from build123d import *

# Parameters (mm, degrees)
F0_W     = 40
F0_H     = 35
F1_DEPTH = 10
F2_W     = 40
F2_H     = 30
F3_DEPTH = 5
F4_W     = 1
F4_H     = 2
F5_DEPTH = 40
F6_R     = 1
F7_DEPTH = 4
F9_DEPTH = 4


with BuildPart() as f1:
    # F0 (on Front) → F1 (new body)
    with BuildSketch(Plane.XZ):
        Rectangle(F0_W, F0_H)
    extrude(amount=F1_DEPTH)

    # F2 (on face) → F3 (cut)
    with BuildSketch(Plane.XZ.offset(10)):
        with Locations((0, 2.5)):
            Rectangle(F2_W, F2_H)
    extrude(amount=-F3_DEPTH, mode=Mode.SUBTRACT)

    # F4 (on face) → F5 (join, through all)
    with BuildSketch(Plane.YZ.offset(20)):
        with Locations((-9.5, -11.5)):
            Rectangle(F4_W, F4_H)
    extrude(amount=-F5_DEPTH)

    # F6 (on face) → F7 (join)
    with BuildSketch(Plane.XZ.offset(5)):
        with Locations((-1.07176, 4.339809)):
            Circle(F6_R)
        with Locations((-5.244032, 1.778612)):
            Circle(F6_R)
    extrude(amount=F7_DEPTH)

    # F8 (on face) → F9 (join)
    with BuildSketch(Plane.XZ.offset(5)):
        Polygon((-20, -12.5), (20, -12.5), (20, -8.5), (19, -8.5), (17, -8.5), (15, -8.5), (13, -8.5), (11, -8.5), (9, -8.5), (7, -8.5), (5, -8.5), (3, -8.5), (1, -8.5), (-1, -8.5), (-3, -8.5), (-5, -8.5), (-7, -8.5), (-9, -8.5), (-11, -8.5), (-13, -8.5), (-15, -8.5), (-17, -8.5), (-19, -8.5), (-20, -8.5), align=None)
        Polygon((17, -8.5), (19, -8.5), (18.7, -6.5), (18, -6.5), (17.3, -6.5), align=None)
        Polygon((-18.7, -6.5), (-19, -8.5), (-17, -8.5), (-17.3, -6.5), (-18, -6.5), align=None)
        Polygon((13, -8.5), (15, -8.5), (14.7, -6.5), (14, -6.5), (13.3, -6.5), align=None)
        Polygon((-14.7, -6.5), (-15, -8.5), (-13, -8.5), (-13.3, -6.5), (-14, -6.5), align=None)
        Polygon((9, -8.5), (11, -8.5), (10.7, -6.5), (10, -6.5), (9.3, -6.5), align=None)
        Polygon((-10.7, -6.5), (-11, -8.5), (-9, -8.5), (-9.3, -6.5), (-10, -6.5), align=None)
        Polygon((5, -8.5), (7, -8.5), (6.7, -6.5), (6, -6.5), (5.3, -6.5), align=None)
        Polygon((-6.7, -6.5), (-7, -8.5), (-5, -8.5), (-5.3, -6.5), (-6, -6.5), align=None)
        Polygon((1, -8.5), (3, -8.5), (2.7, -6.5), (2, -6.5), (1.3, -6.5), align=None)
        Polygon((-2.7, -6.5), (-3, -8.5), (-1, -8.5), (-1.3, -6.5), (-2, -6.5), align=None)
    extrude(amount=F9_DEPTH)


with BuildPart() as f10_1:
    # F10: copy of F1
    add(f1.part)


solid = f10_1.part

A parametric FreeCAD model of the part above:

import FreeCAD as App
import Part
import Sketcher

doc = App.newDocument("Part")
params = doc.addObject("Spreadsheet::Sheet", "Params")
for row, (alias, value) in enumerate([
    ("sketch1_width", "40 mm"),
    ("sketch1_height", "35 mm"),
    ("pad1_length", "10 mm"),
    ("sketch2_width", "40 mm"),
    ("sketch2_height", "30 mm"),
    ("pocket1_length", "5 mm"),
    ("sketch3_width", "1 mm"),
    ("sketch3_height", "2 mm"),
    ("pad2_length", "40 mm"),
    ("sketch4_diameter", "2 mm"),
    ("pad3_length", "4 mm"),
    ("sketch5_width", "40 mm"),
    ("sketch5_width2", "1 mm"),
    ("sketch5_width3", "2 mm"),
    ("sketch5_height", "4 mm"),
    ("sketch5_width4", "1.4 mm"),
    ("pad4_length", "4 mm"),
], start=1):
    params.set(f"A{row}", alias)
    params.set(f"B{row}", "=" + value)
    params.setAlias(f"B{row}", alias)

body = doc.addObject("PartDesign::Body", "Body")

# Sketch on XZ plane
sketch1 = doc.addObject("Sketcher::SketchObject", "Sketch")
body.addObject(sketch1)
sketch1.AttachmentSupport = (doc.XZ_Plane, [""])
sketch1.MapMode = "FlatFace"
sketch1.addGeometry([
    Part.LineSegment(App.Vector(-20, 18, 0), App.Vector(-20, -18, 0)),
    Part.LineSegment(App.Vector(-20, -18, 0), App.Vector(20, -18, 0)),
    Part.LineSegment(App.Vector(20, -18, 0), App.Vector(20, 18, 0)),
    Part.LineSegment(App.Vector(20, 18, 0), App.Vector(-20, 18, 0)),
], False)
sketch1.addConstraint([
    Sketcher.Constraint("Coincident", 0, 2, 1, 1),
    Sketcher.Constraint("Coincident", 1, 2, 2, 1),
    Sketcher.Constraint("Coincident", 2, 2, 3, 1),
    Sketcher.Constraint("Coincident", 3, 2, 0, 1),
    Sketcher.Constraint("Vertical", 0),
    Sketcher.Constraint("Horizontal", 1),
    Sketcher.Constraint("Vertical", 2),
    Sketcher.Constraint("Horizontal", 3),
    Sketcher.Constraint("Symmetric", 0, 2, 2, 2, -1, 1),
    Sketcher.Constraint("DistanceX", 1, 1, 1, 2, 40.0),
    Sketcher.Constraint("DistanceY", 0, 2, 0, 1, 35.0),
])
sketch1.setExpression("Constraints[9]", "Params.sketch1_width")
sketch1.setExpression("Constraints[10]", "Params.sketch1_height")
pad1 = doc.addObject("PartDesign::Pad", "Pad")
body.addObject(pad1)
pad1.Profile = sketch1
pad1.setExpression("Length", "Params.pad1_length")

# Sketch on XZ plane
sketch2 = doc.addObject("Sketcher::SketchObject", "Sketch001")
body.addObject(sketch2)
sketch2.AttachmentSupport = (doc.XZ_Plane, [""])
sketch2.MapMode = "FlatFace"
sketch2.AttachmentOffset = App.Placement(App.Vector(0, 0, 10), App.Rotation())
sketch2.addGeometry([
    Part.LineSegment(App.Vector(-20, 18, 0), App.Vector(-20, -12, 0)),
    Part.LineSegment(App.Vector(-20, -12, 0), App.Vector(20, -12, 0)),
    Part.LineSegment(App.Vector(20, -12, 0), App.Vector(20, 18, 0)),
    Part.LineSegment(App.Vector(20, 18, 0), App.Vector(-20, 18, 0)),
], False)
sketch2.addConstraint([
    Sketcher.Constraint("Coincident", 0, 2, 1, 1),
    Sketcher.Constraint("Coincident", 1, 2, 2, 1),
    Sketcher.Constraint("Coincident", 2, 2, 3, 1),
    Sketcher.Constraint("Coincident", 3, 2, 0, 1),
    Sketcher.Constraint("Vertical", 0),
    Sketcher.Constraint("Horizontal", 1),
    Sketcher.Constraint("Vertical", 2),
    Sketcher.Constraint("Horizontal", 3),
    Sketcher.Constraint("DistanceX", 1, 1, 1, 2, 40.0),
    Sketcher.Constraint("DistanceY", 0, 2, 0, 1, 30.0),
    Sketcher.Constraint("DistanceX", 0, 2, -1, 1, 20.0),
    Sketcher.Constraint("DistanceY", 0, 2, -1, 1, 12.5),
])
sketch2.setExpression("Constraints[8]", "Params.sketch2_width")
sketch2.setExpression("Constraints[9]", "Params.sketch2_height")
pocket1 = doc.addObject("PartDesign::Pocket", "Pocket")
body.addObject(pocket1)
pocket1.Profile = sketch2
pocket1.setExpression("Length", "Params.pocket1_length")

# Sketch on YZ plane
sketch3 = doc.addObject("Sketcher::SketchObject", "Sketch002")
body.addObject(sketch3)
sketch3.AttachmentSupport = (doc.YZ_Plane, [""])
sketch3.MapMode = "FlatFace"
sketch3.AttachmentOffset = App.Placement(App.Vector(0, 0, 20), App.Rotation())
sketch3.addGeometry([
    Part.LineSegment(App.Vector(-10, -10.5, 0), App.Vector(-10, -12.5, 0)),
    Part.LineSegment(App.Vector(-10, -12.5, 0), App.Vector(-9, -12.5, 0)),
    Part.LineSegment(App.Vector(-9, -12.5, 0), App.Vector(-9, -10.5, 0)),
    Part.LineSegment(App.Vector(-9, -10.5, 0), App.Vector(-10, -10.5, 0)),
], False)
sketch3.addConstraint([
    Sketcher.Constraint("Coincident", 0, 2, 1, 1),
    Sketcher.Constraint("Coincident", 1, 2, 2, 1),
    Sketcher.Constraint("Coincident", 2, 2, 3, 1),
    Sketcher.Constraint("Coincident", 3, 2, 0, 1),
    Sketcher.Constraint("Vertical", 0),
    Sketcher.Constraint("Horizontal", 1),
    Sketcher.Constraint("Vertical", 2),
    Sketcher.Constraint("Horizontal", 3),
    Sketcher.Constraint("DistanceX", 1, 1, 1, 2, 1.0),
    Sketcher.Constraint("DistanceY", 0, 2, 0, 1, 2.0),
    Sketcher.Constraint("DistanceX", 0, 2, -1, 1, 10.0),
    Sketcher.Constraint("DistanceY", 0, 2, -1, 1, 12.5),
])
sketch3.setExpression("Constraints[8]", "Params.sketch3_width")
sketch3.setExpression("Constraints[9]", "Params.sketch3_height")
pad2 = doc.addObject("PartDesign::Pad", "Pad001")
body.addObject(pad2)
pad2.Profile = sketch3
pad2.setExpression("Length", "Params.pad2_length")
pad2.Reversed = True

# Sketch on XZ plane
sketch4 = doc.addObject("Sketcher::SketchObject", "Sketch003")
body.addObject(sketch4)
sketch4.AttachmentSupport = (doc.XZ_Plane, [""])
sketch4.MapMode = "FlatFace"
sketch4.AttachmentOffset = App.Placement(App.Vector(0, 0, 5), App.Rotation())
sketch4.addGeometry([
    Part.Circle(App.Vector(-1.1, 4.3, 0), App.Vector(0, 0, 1), 1),
    Part.Circle(App.Vector(-5.2, 1.8, 0), App.Vector(0, 0, 1), 1),
], False)
sketch4.addConstraint([
    Sketcher.Constraint("Equal", 0, 1),
    Sketcher.Constraint("Diameter", 0, 2.0),
    Sketcher.Constraint("DistanceX", 0, 3, -1, 1, 1.07176),
    Sketcher.Constraint("DistanceY", -1, 1, 0, 3, 4.339809),
    Sketcher.Constraint("DistanceX", 1, 3, -1, 1, 5.244032),
    Sketcher.Constraint("DistanceY", -1, 1, 1, 3, 1.778612),
])
sketch4.setExpression("Constraints[1]", "Params.sketch4_diameter")
pad3 = doc.addObject("PartDesign::Pad", "Pad002")
body.addObject(pad3)
pad3.Profile = sketch4
pad3.setExpression("Length", "Params.pad3_length")

# Sketch on XZ plane
sketch5 = doc.addObject("Sketcher::SketchObject", "Sketch004")
body.addObject(sketch5)
sketch5.AttachmentSupport = (doc.XZ_Plane, [""])
sketch5.MapMode = "FlatFace"
sketch5.AttachmentOffset = App.Placement(App.Vector(0, 0, 5), App.Rotation())
sketch5.addGeometry([
    Part.LineSegment(App.Vector(-20, -12.5, 0), App.Vector(20, -12.5, 0)),  # 0
    Part.LineSegment(App.Vector(20, -12.5, 0), App.Vector(20, -8.5, 0)),  # 1
    Part.LineSegment(App.Vector(20, -8.5, 0), App.Vector(19, -8.5, 0)),  # 2
    Part.LineSegment(App.Vector(19, -8.5, 0), App.Vector(18.7, -6.5, 0)),  # 3
    Part.LineSegment(App.Vector(18.7, -6.5, 0), App.Vector(17.3, -6.5, 0)),  # 4
    Part.LineSegment(App.Vector(17.3, -6.5, 0), App.Vector(17, -8.5, 0)),  # 5
    Part.LineSegment(App.Vector(17, -8.5, 0), App.Vector(15, -8.5, 0)),  # 6
    Part.LineSegment(App.Vector(15, -8.5, 0), App.Vector(14.7, -6.5, 0)),  # 7
    Part.LineSegment(App.Vector(14.7, -6.5, 0), App.Vector(13.3, -6.5, 0)),  # 8
    Part.LineSegment(App.Vector(13.3, -6.5, 0), App.Vector(13, -8.5, 0)),  # 9
    Part.LineSegment(App.Vector(13, -8.5, 0), App.Vector(11, -8.5, 0)),  # 10
    Part.LineSegment(App.Vector(11, -8.5, 0), App.Vector(10.7, -6.5, 0)),  # 11
    Part.LineSegment(App.Vector(10.7, -6.5, 0), App.Vector(9.3, -6.5, 0)),  # 12
    Part.LineSegment(App.Vector(9.3, -6.5, 0), App.Vector(9, -8.5, 0)),  # 13
    Part.LineSegment(App.Vector(9, -8.5, 0), App.Vector(7, -8.5, 0)),  # 14
    Part.LineSegment(App.Vector(7, -8.5, 0), App.Vector(6.7, -6.5, 0)),  # 15
    Part.LineSegment(App.Vector(6.7, -6.5, 0), App.Vector(5.3, -6.5, 0)),  # 16
    Part.LineSegment(App.Vector(5.3, -6.5, 0), App.Vector(5, -8.5, 0)),  # 17
    Part.LineSegment(App.Vector(5, -8.5, 0), App.Vector(3, -8.5, 0)),  # 18
    Part.LineSegment(App.Vector(3, -8.5, 0), App.Vector(2.7, -6.5, 0)),  # 19
    Part.LineSegment(App.Vector(2.7, -6.5, 0), App.Vector(1.3, -6.5, 0)),  # 20
    Part.LineSegment(App.Vector(1.3, -6.5, 0), App.Vector(1, -8.5, 0)),  # 21
    Part.LineSegment(App.Vector(1, -8.5, 0), App.Vector(-1, -8.5, 0)),  # 22
    Part.LineSegment(App.Vector(-1, -8.5, 0), App.Vector(-1.3, -6.5, 0)),  # 23
    Part.LineSegment(App.Vector(-1.3, -6.5, 0), App.Vector(-2.7, -6.5, 0)),  # 24
    Part.LineSegment(App.Vector(-2.7, -6.5, 0), App.Vector(-3, -8.5, 0)),  # 25
    Part.LineSegment(App.Vector(-3, -8.5, 0), App.Vector(-5, -8.5, 0)),  # 26
    Part.LineSegment(App.Vector(-5, -8.5, 0), App.Vector(-5.3, -6.5, 0)),  # 27
    Part.LineSegment(App.Vector(-5.3, -6.5, 0), App.Vector(-6.7, -6.5, 0)),  # 28
    Part.LineSegment(App.Vector(-6.7, -6.5, 0), App.Vector(-7, -8.5, 0)),  # 29
    Part.LineSegment(App.Vector(-7, -8.5, 0), App.Vector(-9, -8.5, 0)),  # 30
    Part.LineSegment(App.Vector(-9, -8.5, 0), App.Vector(-9.3, -6.5, 0)),  # 31
    Part.LineSegment(App.Vector(-9.3, -6.5, 0), App.Vector(-10.7, -6.5, 0)),  # 32
    Part.LineSegment(App.Vector(-10.7, -6.5, 0), App.Vector(-11, -8.5, 0)),  # 33
    Part.LineSegment(App.Vector(-11, -8.5, 0), App.Vector(-13, -8.5, 0)),  # 34
    Part.LineSegment(App.Vector(-13, -8.5, 0), App.Vector(-13.3, -6.5, 0)),  # 35
    Part.LineSegment(App.Vector(-13.3, -6.5, 0), App.Vector(-14.7, -6.5, 0)),  # 36
    Part.LineSegment(App.Vector(-14.7, -6.5, 0), App.Vector(-15, -8.5, 0)),  # 37
    Part.LineSegment(App.Vector(-15, -8.5, 0), App.Vector(-17, -8.5, 0)),  # 38
    Part.LineSegment(App.Vector(-17, -8.5, 0), App.Vector(-17.3, -6.5, 0)),  # 39
    Part.LineSegment(App.Vector(-17.3, -6.5, 0), App.Vector(-18.7, -6.5, 0)),  # 40
    Part.LineSegment(App.Vector(-18.7, -6.5, 0), App.Vector(-19, -8.5, 0)),  # 41
    Part.LineSegment(App.Vector(-19, -8.5, 0), App.Vector(-20, -8.5, 0)),  # 42
    Part.LineSegment(App.Vector(-20, -8.5, 0), App.Vector(-20, -12.5, 0)),  # 43
], False)
sketch5.addConstraint([
    Sketcher.Constraint("Coincident", 0, 2, 1, 1),
    Sketcher.Constraint("Coincident", 1, 2, 2, 1),
    Sketcher.Constraint("Coincident", 2, 2, 3, 1),
    Sketcher.Constraint("Coincident", 3, 2, 4, 1),
    Sketcher.Constraint("Coincident", 4, 2, 5, 1),
    Sketcher.Constraint("Coincident", 5, 2, 6, 1),
    Sketcher.Constraint("Coincident", 6, 2, 7, 1),
    Sketcher.Constraint("Coincident", 7, 2, 8, 1),
    Sketcher.Constraint("Coincident", 8, 2, 9, 1),
    Sketcher.Constraint("Coincident", 9, 2, 10, 1),
    Sketcher.Constraint("Coincident", 10, 2, 11, 1),
    Sketcher.Constraint("Coincident", 11, 2, 12, 1),
    Sketcher.Constraint("Coincident", 12, 2, 13, 1),
    Sketcher.Constraint("Coincident", 13, 2, 14, 1),
    Sketcher.Constraint("Coincident", 14, 2, 15, 1),
    Sketcher.Constraint("Coincident", 15, 2, 16, 1),
    Sketcher.Constraint("Coincident", 16, 2, 17, 1),
    Sketcher.Constraint("Coincident", 17, 2, 18, 1),
    Sketcher.Constraint("Coincident", 18, 2, 19, 1),
    Sketcher.Constraint("Coincident", 19, 2, 20, 1),
    Sketcher.Constraint("Coincident", 20, 2, 21, 1),
    Sketcher.Constraint("Coincident", 21, 2, 22, 1),
    Sketcher.Constraint("Coincident", 22, 2, 23, 1),
    Sketcher.Constraint("Coincident", 23, 2, 24, 1),
    Sketcher.Constraint("Coincident", 24, 2, 25, 1),
    Sketcher.Constraint("Coincident", 25, 2, 26, 1),
    Sketcher.Constraint("Coincident", 26, 2, 27, 1),
    Sketcher.Constraint("Coincident", 27, 2, 28, 1),
    Sketcher.Constraint("Coincident", 28, 2, 29, 1),
    Sketcher.Constraint("Coincident", 29, 2, 30, 1),
    Sketcher.Constraint("Coincident", 30, 2, 31, 1),
    Sketcher.Constraint("Coincident", 31, 2, 32, 1),
    Sketcher.Constraint("Coincident", 32, 2, 33, 1),
    Sketcher.Constraint("Coincident", 33, 2, 34, 1),
    Sketcher.Constraint("Coincident", 34, 2, 35, 1),
    Sketcher.Constraint("Coincident", 35, 2, 36, 1),
    Sketcher.Constraint("Coincident", 36, 2, 37, 1),
    Sketcher.Constraint("Coincident", 37, 2, 38, 1),
    Sketcher.Constraint("Coincident", 38, 2, 39, 1),
    Sketcher.Constraint("Coincident", 39, 2, 40, 1),
    Sketcher.Constraint("Coincident", 40, 2, 41, 1),
    Sketcher.Constraint("Coincident", 41, 2, 42, 1),
    Sketcher.Constraint("Coincident", 42, 2, 43, 1),
    Sketcher.Constraint("Coincident", 43, 2, 0, 1),
    Sketcher.Constraint("Horizontal", 0),
    Sketcher.Constraint("Vertical", 1),
    Sketcher.Constraint("Horizontal", 2),
    Sketcher.Constraint("Horizontal", 4),
    Sketcher.Constraint("Horizontal", 6),
    Sketcher.Constraint("Horizontal", 8),
    Sketcher.Constraint("Horizontal", 10),
    Sketcher.Constraint("Horizontal", 12),
    Sketcher.Constraint("Horizontal", 14),
    Sketcher.Constraint("Horizontal", 16),
    Sketcher.Constraint("Horizontal", 18),
    Sketcher.Constraint("Horizontal", 20),
    Sketcher.Constraint("Horizontal", 22),
    Sketcher.Constraint("Horizontal", 24),
    Sketcher.Constraint("Horizontal", 26),
    Sketcher.Constraint("Horizontal", 28),
    Sketcher.Constraint("Horizontal", 30),
    Sketcher.Constraint("Horizontal", 32),
    Sketcher.Constraint("Horizontal", 34),
    Sketcher.Constraint("Horizontal", 36),
    Sketcher.Constraint("Horizontal", 38),
    Sketcher.Constraint("Horizontal", 40),
    Sketcher.Constraint("Horizontal", 42),
    Sketcher.Constraint("Vertical", 43),
    Sketcher.Constraint("Symmetric", 20, 2, 23, 2, -2),
    Sketcher.Constraint("Symmetric", 18, 2, 25, 2, -2),
    Sketcher.Constraint("Symmetric", 16, 2, 27, 2, -2),
    Sketcher.Constraint("Symmetric", 14, 2, 29, 2, -2),
    Sketcher.Constraint("Symmetric", 12, 2, 31, 2, -2),
    Sketcher.Constraint("Symmetric", 10, 2, 33, 2, -2),
    Sketcher.Constraint("Symmetric", 8, 2, 35, 2, -2),
    Sketcher.Constraint("Symmetric", 6, 2, 37, 2, -2),
    Sketcher.Constraint("Symmetric", 4, 2, 39, 2, -2),
    Sketcher.Constraint("Symmetric", 2, 2, 41, 2, -2),
    Sketcher.Constraint("Parallel", 3, 7),
    Sketcher.Constraint("Parallel", 5, 9),
    Sketcher.Constraint("Parallel", 7, 11),
    Sketcher.Constraint("Parallel", 9, 13),
    Sketcher.Constraint("Parallel", 11, 15),
    Sketcher.Constraint("Parallel", 13, 17),
    Sketcher.Constraint("Parallel", 15, 19),
    Sketcher.Constraint("Parallel", 17, 21),
    Sketcher.Constraint("Parallel", 19, 23),
    Sketcher.Constraint("Parallel", 21, 25),
    Sketcher.Constraint("Parallel", 23, 27),
    Sketcher.Constraint("Parallel", 25, 29),
    Sketcher.Constraint("Parallel", 27, 31),
    Sketcher.Constraint("Parallel", 29, 33),
    Sketcher.Constraint("Parallel", 31, 35),
    Sketcher.Constraint("Parallel", 33, 37),
    Sketcher.Constraint("Parallel", 35, 39),
    Sketcher.Constraint("Parallel", 37, 41),
    Sketcher.Constraint("Horizontal", 2, 2, 5, 2),
    Sketcher.Constraint("Horizontal", 4, 2, 7, 2),
    Sketcher.Constraint("Horizontal", 6, 2, 9, 2),
    Sketcher.Constraint("Horizontal", 8, 2, 11, 2),
    Sketcher.Constraint("Horizontal", 10, 2, 13, 2),
    Sketcher.Constraint("Horizontal", 12, 2, 15, 2),
    Sketcher.Constraint("Horizontal", 14, 2, 17, 2),
    Sketcher.Constraint("Horizontal", 16, 2, 19, 2),
    Sketcher.Constraint("Horizontal", 18, 2, 21, 2),
    Sketcher.Constraint("Equal", 4, 8),
    Sketcher.Constraint("Equal", 6, 10),
    Sketcher.Constraint("Equal", 8, 12),
    Sketcher.Constraint("Equal", 10, 14),
    Sketcher.Constraint("Equal", 12, 16),
    Sketcher.Constraint("Equal", 14, 18),
    Sketcher.Constraint("Equal", 16, 20),
    Sketcher.Constraint("Equal", 18, 22),
    Sketcher.Constraint("Equal", 20, 24),
    Sketcher.Constraint("Equal", 2, 42),
    Sketcher.Constraint("DistanceX", 0, 1, 0, 2, 40.0),
    Sketcher.Constraint("DistanceX", 2, 2, 2, 1, 1.0),
    Sketcher.Constraint("DistanceX", 6, 2, 6, 1, 2.0),
    Sketcher.Constraint("DistanceY", 1, 1, 1, 2, 4.0),
    Sketcher.Constraint("DistanceX", 4, 2, 4, 1, 1.4),
    Sketcher.Constraint("DistanceY", 2, 2, 3, 2, 2.0),
    Sketcher.Constraint("DistanceY", 0, 2, -1, 1, 12.5),
])
sketch5.setExpression("Constraints[115]", "Params.sketch5_width")
sketch5.setExpression("Constraints[116]", "Params.sketch5_width2")
sketch5.setExpression("Constraints[117]", "Params.sketch5_width3")
sketch5.setExpression("Constraints[118]", "Params.sketch5_height")
sketch5.setExpression("Constraints[119]", "Params.sketch5_width4")
pad4 = doc.addObject("PartDesign::Pad", "Pad003")
body.addObject(pad4)
pad4.Profile = sketch5
pad4.setExpression("Length", "Params.pad4_length")

doc.recompute()
